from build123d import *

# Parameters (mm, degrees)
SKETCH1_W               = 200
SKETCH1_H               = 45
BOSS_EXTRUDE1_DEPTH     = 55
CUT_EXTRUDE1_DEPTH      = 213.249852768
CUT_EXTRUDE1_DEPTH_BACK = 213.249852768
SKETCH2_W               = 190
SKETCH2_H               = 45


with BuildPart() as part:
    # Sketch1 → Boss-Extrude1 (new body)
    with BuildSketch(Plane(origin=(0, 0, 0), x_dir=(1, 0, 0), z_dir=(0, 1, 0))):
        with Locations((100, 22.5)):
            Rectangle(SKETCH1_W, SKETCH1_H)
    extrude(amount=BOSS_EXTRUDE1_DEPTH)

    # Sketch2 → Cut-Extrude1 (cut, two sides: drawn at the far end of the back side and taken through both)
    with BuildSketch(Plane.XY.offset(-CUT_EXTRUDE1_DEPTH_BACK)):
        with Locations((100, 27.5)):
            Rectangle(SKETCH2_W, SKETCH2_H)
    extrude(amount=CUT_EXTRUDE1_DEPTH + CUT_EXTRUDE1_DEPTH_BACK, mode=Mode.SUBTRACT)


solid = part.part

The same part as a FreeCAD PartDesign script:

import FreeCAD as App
import Part
import Sketcher
Q = App.Units.Quantity

doc = App.newDocument("Part")
params = doc.addObject("Spreadsheet::Sheet", "Params")
for row, (alias, value) in enumerate([
    ("sketch1_width", "200 mm"),
    ("sketch1_height", "45 mm"),
    ("pad1_length", "55 mm"),
    ("sketch2_width", "190 mm"),
    ("sketch2_height", "45 mm"),
], start=1):
    params.set(f"A{row}", alias)
    params.set(f"B{row}", "=" + value)
    params.setAlias(f"B{row}", alias)

body = doc.addObject("PartDesign::Body", "Body")

sketch1 = doc.addObject("Sketcher::SketchObject", "Sketch")
body.addObject(sketch1)
sketch1.AttachmentSupport = (doc.XZ_Plane, [""])
sketch1.MapMode = "FlatFace"
sketch1.addGeometry([
    Part.LineSegment(App.Vector(0, -45, 0), App.Vector(0, 0, 0)),
    Part.LineSegment(App.Vector(0, 0, 0), App.Vector(200, 0, 0)),
    Part.LineSegment(App.Vector(200, 0, 0), App.Vector(200, -45, 0)),
    Part.LineSegment(App.Vector(200, -45, 0), App.Vector(0, -45, 0)),
], False)
sketch1.addConstraint([
    Sketcher.Constraint("Coincident", 0, 2, 1, 1),
    Sketcher.Constraint("Coincident", 1, 2, 2, 1),
    Sketcher.Constraint("Coincident", 2, 2, 3, 1),
    Sketcher.Constraint("Coincident", 3, 2, 0, 1),
    Sketcher.Constraint("Vertical", 0),
    Sketcher.Constraint("Horizontal", 1),
    Sketcher.Constraint("Vertical", 2),
    Sketcher.Constraint("Horizontal", 3),
    Sketcher.Constraint("Coincident", 0, 2, -1, 1),
    Sketcher.Constraint("DistanceX", 1, 1, 1, 2, Q("200 mm")),
    Sketcher.Constraint("DistanceY", 0, 1, 0, 2, Q("45 mm")),
])
sketch1.setExpression("Constraints[9]", "Params.sketch1_width")
sketch1.setExpression("Constraints[10]", "Params.sketch1_height")
pad1 = doc.addObject("PartDesign::Pad", "Pad")
body.addObject(pad1)
pad1.Profile = sketch1
pad1.setExpression("Length", "Params.pad1_length")
pad1.Reversed = True

sketch2 = doc.addObject("Sketcher::SketchObject", "Sketch001")
body.addObject(sketch2)
sketch2.AttachmentSupport = (doc.XY_Plane, [""])
sketch2.MapMode = "FlatFace"
sketch2.addGeometry([
    Part.LineSegment(App.Vector(5, 50, 0), App.Vector(5, 5, 0)),
    Part.LineSegment(App.Vector(5, 5, 0), App.Vector(195, 5, 0)),
    Part.LineSegment(App.Vector(195, 5, 0), App.Vector(195, 50, 0)),
    Part.LineSegment(App.Vector(195, 50, 0), App.Vector(5, 50, 0)),
], False)
sketch2.addConstraint([
    Sketcher.Constraint("Coincident", 0, 2, 1, 1),
    Sketcher.Constraint("Coincident", 1, 2, 2, 1),
    Sketcher.Constraint("Coincident", 2, 2, 3, 1),
    Sketcher.Constraint("Coincident", 3, 2, 0, 1),
    Sketcher.Constraint("Vertical", 0),
    Sketcher.Constraint("Horizontal", 1),
    Sketcher.Constraint("Vertical", 2),
    Sketcher.Constraint("Horizontal", 3),
    Sketcher.Constraint("DistanceX", 1, 1, 1, 2, Q("190 mm")),
    Sketcher.Constraint("DistanceY", 0, 2, 0, 1, Q("45 mm")),
    Sketcher.Constraint("DistanceX", -1, 1, 0, 2, Q("5 mm")),
    Sketcher.Constraint("DistanceY", -1, 1, 0, 2, Q("5 mm")),
])
sketch2.setExpression("Constraints[8]", "Params.sketch2_width")
sketch2.setExpression("Constraints[9]", "Params.sketch2_height")
pocket1 = doc.addObject("PartDesign::Pocket", "Pocket")
body.addObject(pocket1)
pocket1.Profile = sketch2
pocket1.Type = "ThroughAll"
pocket1.Midplane = True

doc.recompute()
